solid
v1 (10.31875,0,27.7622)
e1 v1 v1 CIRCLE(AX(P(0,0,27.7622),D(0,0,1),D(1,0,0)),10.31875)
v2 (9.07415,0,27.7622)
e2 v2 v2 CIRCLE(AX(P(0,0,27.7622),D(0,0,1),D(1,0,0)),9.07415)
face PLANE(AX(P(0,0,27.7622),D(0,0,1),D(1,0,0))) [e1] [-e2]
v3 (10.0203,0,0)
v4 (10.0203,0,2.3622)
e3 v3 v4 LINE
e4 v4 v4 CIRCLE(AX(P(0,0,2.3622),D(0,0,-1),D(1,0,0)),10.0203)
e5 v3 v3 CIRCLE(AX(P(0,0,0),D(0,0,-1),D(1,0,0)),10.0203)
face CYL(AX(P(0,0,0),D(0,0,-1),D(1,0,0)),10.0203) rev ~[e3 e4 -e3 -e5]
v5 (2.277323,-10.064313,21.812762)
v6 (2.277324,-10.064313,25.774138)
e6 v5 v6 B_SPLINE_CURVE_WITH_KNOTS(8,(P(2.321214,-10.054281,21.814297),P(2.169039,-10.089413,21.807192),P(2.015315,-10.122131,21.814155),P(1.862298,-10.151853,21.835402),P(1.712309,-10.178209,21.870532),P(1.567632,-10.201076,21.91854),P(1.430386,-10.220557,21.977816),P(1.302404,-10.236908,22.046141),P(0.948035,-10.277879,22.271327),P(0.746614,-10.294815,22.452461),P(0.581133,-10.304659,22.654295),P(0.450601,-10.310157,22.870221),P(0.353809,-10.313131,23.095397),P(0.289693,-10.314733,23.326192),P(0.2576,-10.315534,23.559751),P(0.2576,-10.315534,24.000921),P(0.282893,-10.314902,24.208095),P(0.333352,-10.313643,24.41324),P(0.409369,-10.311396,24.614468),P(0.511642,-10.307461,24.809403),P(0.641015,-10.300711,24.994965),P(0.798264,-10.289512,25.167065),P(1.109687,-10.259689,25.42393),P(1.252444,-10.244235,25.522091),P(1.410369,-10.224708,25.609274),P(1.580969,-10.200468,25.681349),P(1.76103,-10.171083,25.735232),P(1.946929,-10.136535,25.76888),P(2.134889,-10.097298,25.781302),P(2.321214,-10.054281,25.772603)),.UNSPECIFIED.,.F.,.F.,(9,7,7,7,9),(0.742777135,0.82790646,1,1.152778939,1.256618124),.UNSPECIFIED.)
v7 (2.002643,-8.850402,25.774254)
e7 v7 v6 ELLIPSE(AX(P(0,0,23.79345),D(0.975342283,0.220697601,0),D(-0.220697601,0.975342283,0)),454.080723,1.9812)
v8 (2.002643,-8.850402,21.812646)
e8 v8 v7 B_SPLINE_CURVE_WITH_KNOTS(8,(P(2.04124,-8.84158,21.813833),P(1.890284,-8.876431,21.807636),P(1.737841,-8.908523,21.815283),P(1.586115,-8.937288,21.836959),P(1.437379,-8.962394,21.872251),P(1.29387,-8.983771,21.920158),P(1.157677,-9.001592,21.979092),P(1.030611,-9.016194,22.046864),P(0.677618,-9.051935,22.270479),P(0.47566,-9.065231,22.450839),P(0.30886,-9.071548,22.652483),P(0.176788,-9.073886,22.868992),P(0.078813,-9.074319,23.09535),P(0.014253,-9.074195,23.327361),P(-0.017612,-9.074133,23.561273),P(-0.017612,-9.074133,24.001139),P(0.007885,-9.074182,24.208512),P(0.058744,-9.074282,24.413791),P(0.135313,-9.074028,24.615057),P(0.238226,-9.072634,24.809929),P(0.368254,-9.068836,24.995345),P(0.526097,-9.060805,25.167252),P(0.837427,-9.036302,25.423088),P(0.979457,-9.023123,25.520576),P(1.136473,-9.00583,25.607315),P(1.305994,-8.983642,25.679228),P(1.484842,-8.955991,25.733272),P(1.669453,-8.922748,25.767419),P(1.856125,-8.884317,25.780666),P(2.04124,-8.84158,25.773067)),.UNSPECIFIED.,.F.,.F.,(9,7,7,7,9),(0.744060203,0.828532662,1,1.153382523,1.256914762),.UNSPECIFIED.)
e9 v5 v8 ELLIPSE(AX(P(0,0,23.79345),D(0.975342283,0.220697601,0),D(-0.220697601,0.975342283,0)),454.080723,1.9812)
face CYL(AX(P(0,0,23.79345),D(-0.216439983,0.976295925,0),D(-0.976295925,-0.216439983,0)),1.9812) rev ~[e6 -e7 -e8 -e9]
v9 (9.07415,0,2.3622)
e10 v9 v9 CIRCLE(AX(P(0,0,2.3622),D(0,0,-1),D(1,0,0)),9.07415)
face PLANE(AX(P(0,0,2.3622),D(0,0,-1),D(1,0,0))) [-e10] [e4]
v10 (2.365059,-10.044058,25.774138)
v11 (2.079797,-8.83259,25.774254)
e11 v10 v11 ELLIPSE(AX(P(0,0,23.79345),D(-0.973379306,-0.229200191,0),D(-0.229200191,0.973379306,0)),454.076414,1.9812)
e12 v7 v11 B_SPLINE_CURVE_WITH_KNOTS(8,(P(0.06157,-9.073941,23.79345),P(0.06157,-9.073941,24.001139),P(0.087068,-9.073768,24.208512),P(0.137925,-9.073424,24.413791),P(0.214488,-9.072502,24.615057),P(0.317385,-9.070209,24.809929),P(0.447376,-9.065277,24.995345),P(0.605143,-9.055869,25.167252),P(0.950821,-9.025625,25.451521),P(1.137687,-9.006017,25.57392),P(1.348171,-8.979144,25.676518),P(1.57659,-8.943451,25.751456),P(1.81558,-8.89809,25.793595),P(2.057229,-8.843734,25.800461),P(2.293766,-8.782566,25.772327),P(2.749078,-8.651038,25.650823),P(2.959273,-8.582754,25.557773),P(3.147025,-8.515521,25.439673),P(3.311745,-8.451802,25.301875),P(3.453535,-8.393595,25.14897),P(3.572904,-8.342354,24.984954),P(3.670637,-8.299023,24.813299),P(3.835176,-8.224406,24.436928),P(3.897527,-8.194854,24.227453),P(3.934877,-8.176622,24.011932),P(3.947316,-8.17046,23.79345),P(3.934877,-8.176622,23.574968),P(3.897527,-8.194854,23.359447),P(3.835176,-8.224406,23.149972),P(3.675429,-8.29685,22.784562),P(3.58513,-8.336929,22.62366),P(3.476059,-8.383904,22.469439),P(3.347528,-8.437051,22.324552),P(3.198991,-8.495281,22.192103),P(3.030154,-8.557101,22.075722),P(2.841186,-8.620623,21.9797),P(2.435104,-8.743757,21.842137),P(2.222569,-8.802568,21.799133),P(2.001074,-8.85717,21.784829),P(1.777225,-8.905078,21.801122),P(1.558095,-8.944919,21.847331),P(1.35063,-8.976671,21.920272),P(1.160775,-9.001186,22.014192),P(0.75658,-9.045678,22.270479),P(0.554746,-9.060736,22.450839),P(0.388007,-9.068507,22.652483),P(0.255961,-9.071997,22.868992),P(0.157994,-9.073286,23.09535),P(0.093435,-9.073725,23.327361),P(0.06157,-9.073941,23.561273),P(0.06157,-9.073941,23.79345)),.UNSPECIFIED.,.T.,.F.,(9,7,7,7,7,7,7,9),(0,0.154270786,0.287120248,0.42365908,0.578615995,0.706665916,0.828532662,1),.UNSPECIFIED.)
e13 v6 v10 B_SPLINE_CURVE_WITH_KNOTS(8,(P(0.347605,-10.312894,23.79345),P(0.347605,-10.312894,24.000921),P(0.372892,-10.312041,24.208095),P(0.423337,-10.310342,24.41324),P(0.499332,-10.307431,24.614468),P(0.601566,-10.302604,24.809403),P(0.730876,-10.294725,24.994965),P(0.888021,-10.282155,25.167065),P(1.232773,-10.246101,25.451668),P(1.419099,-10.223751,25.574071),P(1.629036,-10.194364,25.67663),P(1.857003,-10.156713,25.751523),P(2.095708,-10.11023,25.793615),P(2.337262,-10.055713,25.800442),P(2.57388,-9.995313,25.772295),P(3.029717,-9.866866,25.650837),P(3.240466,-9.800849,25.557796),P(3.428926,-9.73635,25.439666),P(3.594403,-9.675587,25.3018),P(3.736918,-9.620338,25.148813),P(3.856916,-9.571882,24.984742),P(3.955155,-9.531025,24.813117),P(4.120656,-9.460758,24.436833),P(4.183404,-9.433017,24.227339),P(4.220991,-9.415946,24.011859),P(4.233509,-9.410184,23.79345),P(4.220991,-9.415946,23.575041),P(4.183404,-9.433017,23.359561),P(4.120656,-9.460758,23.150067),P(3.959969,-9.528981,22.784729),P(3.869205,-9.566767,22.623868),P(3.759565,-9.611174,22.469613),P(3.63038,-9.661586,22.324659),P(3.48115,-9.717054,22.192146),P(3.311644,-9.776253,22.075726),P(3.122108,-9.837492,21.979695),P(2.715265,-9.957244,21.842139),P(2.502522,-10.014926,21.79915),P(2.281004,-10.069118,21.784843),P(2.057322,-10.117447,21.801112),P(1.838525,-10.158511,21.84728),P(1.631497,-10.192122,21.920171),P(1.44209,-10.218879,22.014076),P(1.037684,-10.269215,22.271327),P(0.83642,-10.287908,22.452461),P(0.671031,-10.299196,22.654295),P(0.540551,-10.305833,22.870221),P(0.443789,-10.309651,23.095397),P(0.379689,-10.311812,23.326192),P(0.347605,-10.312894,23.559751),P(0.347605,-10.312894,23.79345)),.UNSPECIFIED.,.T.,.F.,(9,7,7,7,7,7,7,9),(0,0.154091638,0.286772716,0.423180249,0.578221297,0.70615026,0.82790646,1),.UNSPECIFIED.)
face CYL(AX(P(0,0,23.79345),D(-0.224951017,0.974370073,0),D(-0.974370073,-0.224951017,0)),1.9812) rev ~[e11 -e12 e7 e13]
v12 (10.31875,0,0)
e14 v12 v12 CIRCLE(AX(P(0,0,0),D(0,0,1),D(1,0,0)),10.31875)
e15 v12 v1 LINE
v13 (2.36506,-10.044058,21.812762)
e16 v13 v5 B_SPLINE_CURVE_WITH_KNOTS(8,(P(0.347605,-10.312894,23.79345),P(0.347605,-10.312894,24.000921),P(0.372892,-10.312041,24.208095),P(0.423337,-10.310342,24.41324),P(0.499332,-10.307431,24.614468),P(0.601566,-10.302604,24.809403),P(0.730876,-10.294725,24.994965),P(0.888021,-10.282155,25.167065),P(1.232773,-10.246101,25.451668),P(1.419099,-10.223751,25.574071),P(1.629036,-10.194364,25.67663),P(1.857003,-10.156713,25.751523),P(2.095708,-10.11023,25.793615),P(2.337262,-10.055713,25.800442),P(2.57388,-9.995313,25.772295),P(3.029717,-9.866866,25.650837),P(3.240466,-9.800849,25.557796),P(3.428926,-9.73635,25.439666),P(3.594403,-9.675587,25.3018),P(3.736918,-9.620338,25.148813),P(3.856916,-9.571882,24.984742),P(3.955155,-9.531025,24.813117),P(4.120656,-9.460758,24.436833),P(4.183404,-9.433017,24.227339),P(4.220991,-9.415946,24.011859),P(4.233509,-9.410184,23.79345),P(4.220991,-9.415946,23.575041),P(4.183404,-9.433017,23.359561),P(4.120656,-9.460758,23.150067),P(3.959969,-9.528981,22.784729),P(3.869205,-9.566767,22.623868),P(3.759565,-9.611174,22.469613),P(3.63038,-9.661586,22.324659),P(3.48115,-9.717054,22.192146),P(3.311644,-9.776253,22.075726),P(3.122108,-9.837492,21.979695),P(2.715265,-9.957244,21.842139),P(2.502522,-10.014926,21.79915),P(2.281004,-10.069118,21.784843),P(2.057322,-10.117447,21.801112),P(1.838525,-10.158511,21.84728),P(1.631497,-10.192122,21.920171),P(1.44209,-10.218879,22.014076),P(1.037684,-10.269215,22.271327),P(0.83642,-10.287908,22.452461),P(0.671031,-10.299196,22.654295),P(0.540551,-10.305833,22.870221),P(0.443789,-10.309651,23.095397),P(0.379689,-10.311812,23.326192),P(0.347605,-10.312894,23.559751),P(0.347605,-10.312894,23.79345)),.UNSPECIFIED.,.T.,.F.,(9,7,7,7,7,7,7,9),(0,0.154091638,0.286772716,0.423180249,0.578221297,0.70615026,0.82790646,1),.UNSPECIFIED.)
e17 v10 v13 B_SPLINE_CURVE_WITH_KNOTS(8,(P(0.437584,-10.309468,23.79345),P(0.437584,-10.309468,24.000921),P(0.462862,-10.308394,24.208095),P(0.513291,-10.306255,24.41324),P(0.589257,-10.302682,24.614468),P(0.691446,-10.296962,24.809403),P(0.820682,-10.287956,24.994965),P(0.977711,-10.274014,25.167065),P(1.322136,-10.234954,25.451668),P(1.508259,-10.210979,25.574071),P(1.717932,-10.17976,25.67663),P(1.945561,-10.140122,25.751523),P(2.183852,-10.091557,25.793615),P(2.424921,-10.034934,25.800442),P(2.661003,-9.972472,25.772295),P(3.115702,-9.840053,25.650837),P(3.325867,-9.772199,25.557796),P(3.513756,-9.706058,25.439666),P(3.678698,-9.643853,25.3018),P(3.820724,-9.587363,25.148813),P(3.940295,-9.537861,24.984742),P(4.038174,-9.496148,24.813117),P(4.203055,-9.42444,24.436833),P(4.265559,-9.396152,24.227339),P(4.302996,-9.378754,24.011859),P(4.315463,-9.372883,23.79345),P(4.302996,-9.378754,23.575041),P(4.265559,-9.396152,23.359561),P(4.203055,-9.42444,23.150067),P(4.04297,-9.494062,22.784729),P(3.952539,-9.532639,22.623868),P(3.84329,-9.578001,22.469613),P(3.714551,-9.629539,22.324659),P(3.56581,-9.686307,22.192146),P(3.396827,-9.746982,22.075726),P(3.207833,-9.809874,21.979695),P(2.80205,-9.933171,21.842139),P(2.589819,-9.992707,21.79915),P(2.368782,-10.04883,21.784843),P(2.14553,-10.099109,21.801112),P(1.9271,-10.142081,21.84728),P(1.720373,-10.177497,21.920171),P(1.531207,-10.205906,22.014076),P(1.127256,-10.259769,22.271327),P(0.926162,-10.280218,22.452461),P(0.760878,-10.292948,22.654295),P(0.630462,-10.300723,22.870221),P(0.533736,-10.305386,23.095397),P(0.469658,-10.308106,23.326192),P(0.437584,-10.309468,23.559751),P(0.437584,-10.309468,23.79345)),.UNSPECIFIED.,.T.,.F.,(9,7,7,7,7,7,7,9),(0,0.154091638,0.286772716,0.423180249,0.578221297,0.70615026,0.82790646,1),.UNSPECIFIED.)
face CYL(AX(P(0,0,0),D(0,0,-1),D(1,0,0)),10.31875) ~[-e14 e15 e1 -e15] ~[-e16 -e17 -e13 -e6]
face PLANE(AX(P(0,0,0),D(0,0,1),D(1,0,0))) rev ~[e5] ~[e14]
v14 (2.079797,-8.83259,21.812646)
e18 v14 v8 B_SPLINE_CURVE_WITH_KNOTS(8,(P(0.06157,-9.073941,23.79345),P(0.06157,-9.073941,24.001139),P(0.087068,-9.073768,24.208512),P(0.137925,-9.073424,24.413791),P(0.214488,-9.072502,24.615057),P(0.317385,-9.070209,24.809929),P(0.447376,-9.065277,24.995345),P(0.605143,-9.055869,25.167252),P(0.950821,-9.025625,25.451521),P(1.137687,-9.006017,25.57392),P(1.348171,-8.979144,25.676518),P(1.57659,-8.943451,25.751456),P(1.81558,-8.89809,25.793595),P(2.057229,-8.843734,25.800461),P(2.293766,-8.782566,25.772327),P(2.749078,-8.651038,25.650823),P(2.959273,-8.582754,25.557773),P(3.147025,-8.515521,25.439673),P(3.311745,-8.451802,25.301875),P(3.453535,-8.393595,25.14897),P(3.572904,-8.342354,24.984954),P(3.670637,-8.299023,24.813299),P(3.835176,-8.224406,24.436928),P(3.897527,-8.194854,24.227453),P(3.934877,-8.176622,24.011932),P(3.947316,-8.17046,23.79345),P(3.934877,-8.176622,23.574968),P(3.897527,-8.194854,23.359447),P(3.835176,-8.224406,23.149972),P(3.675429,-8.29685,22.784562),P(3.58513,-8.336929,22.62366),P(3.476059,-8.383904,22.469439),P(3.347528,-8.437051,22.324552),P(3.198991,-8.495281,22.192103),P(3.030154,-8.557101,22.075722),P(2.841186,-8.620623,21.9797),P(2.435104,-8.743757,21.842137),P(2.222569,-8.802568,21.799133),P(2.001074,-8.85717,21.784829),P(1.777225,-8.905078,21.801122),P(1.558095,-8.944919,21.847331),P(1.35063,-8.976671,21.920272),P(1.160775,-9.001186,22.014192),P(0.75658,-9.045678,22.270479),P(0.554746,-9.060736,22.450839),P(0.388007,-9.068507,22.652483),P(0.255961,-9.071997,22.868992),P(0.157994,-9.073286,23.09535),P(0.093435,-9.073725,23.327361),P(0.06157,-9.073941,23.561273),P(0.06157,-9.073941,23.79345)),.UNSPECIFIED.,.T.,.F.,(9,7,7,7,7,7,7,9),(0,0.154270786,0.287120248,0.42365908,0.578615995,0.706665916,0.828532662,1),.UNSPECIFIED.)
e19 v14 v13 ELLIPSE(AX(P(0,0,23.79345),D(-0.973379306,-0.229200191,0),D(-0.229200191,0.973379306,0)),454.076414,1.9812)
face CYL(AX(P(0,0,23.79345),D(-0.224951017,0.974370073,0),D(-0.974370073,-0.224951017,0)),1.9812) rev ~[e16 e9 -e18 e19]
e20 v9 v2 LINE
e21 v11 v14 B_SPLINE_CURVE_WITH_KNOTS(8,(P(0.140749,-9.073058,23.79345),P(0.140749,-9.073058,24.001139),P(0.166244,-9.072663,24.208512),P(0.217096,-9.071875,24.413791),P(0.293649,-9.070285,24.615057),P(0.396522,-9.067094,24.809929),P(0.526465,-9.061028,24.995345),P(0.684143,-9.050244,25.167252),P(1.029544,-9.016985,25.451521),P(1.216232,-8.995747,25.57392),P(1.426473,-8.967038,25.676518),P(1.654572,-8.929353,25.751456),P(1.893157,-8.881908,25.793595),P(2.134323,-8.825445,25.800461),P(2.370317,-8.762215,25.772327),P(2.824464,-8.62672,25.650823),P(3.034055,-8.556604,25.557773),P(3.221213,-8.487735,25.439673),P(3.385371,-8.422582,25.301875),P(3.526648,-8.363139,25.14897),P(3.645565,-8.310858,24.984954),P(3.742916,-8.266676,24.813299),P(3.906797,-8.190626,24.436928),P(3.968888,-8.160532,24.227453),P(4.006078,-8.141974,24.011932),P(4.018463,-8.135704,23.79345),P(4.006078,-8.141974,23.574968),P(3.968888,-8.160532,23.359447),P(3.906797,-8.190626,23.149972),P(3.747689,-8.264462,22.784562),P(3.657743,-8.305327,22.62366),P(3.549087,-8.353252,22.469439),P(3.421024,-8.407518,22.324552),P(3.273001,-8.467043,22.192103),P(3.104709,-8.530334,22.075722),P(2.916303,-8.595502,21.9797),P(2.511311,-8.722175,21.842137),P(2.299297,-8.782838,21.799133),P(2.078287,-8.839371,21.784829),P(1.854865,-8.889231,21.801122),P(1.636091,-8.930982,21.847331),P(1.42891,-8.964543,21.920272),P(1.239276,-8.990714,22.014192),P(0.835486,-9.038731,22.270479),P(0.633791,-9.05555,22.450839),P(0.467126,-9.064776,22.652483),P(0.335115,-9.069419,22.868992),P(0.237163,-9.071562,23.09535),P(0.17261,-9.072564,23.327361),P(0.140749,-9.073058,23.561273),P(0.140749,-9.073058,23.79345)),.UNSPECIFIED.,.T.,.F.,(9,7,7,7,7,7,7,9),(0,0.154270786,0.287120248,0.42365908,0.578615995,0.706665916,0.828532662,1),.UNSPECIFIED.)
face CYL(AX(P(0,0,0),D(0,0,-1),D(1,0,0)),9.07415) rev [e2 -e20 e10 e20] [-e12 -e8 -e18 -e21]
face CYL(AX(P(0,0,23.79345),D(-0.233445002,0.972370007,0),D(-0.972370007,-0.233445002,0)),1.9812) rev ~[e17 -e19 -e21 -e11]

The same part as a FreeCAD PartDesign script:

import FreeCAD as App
import Part
import Sketcher
from FreeCAD import Vector
Q = App.Units.Quantity


def faces_at(feature, points):
    """Names of the faces that lie closest to the given points."""
    faces = feature.Shape.Faces
    near = lambda p: min(range(len(faces)), key=lambda i: faces[i].distToShape(Part.Vertex(*p))[0])
    return sorted({f"Face{near(p) + 1}" for p in points})

doc = App.newDocument("Part")
body = doc.addObject("PartDesign::Body", "Body")

# Sketch on XY plane
sketch1 = body.newObject("Sketcher::SketchObject", "Sketch")
sketch1.AttachmentSupport = (doc.getObject("XY_Plane"), [""])
sketch1.MapMode = "FlatFace"
sketch1.addGeometry(Part.Circle(Vector(0, 0, 0), Vector(0, 0, 1), 10), False)
sketch1.addConstraint([
    Sketcher.Constraint("Coincident", 0, 3, -1, 1),
    Sketcher.Constraint("Diameter", 0, Q("0.8125 in")),
])
pad1 = body.newObject("PartDesign::Pad", "Pad")
pad1.Profile = sketch1
pad1.Length = Q("1.093 in")
doc.recompute()

thickness = body.newObject("PartDesign::Thickness", "Thickness")
thickness.Base = (pad1, faces_at(pad1, [(0, 0, 27.762), (0, 0, 0)]))
thickness.Value = Q("0.049 in")
thickness.Reversed = True
thickness.Join = "Arc"

# Sketch on XY plane
sketch2 = body.newObject("Sketcher::SketchObject", "Sketch001")
sketch2.AttachmentSupport = (doc.getObject("XY_Plane"), [""])
sketch2.MapMode = "FlatFace"
sketch2.addGeometry(Part.Circle(Vector(0, 0, 0), Vector(0, 0, 1), 10), False)
sketch2.addConstraint([
    Sketcher.Constraint("Coincident", 0, 3, -1, 1),
    Sketcher.Constraint("Diameter", 0, Q("0.789 in")),
])
pocket1 = body.newObject("PartDesign::Pocket", "Pocket")
pocket1.Profile = sketch2
pocket1.Length = Q("0.093 in")
pocket1.Reversed = True

# Sketch on an angled plane
sketch3 = body.newObject("Sketcher::SketchObject", "Sketch002")
sketch3.Placement = App.Placement(Vector(0, 0, 0), App.Rotation(Vector(-0.972370007, -0.233445002, 0), Vector(0, 0, 0.999999999), Vector(-0.233445002, 0.972370007, 0), "ZXY"))
sketch3.addGeometry(Part.Circle(Vector(0, 23.8, 0), Vector(0, 0, 1), 2), False)
sketch3.addConstraint([
    Sketcher.Constraint("PointOnObject", 0, 3, -2),
    Sketcher.Constraint("Diameter", 0, Q("0.156 in")),
    Sketcher.Constraint("DistanceY", -1, 1, 0, 3, 23.79345),
])
pocket2 = body.newObject("PartDesign::Pocket", "Pocket001")
pocket2.Profile = sketch3
pocket2.Type = "ThroughAll"

# Sketch on an angled plane
sketch4 = body.newObject("Sketcher::SketchObject", "Sketch003")
sketch4.Placement = App.Placement(Vector(0, 0, 0), App.Rotation(Vector(-0.976295925, -0.216439983, 0), Vector(0, 0, 0.999999999), Vector(-0.216439983, 0.976295925, 0), "ZXY"))
sketch4.addGeometry(Part.Circle(Vector(0, 23.8, 0), Vector(0, 0, 1), 2), False)
sketch4.addConstraint([
    Sketcher.Constraint("PointOnObject", 0, 3, -2),
    Sketcher.Constraint("Diameter", 0, Q("0.156 in")),
    Sketcher.Constraint("DistanceY", -1, 1, 0, 3, 23.79345),
])
pocket3 = body.newObject("PartDesign::Pocket", "Pocket002")
pocket3.Profile = sketch4
pocket3.Type = "ThroughAll"

# Sketch on an angled plane
sketch5 = body.newObject("Sketcher::SketchObject", "Sketch004")
sketch5.Placement = App.Placement(Vector(0, 0, 0), App.Rotation(Vector(-0.974370073, -0.224951017, 0), Vector(0, 0, 0.999999999), Vector(-0.224951017, 0.974370073, 0), "ZXY"))
sketch5.addGeometry(Part.Circle(Vector(0, 23.8, 0), Vector(0, 0, 1), 2), False)
sketch5.addConstraint([
    Sketcher.Constraint("PointOnObject", 0, 3, -2),
    Sketcher.Constraint("Diameter", 0, Q("0.156 in")),
    Sketcher.Constraint("DistanceY", -1, 1, 0, 3, 23.79345),
])
pocket4 = body.newObject("PartDesign::Pocket", "Pocket003")
pocket4.Profile = sketch5
pocket4.Type = "ThroughAll"

doc.recompute()
